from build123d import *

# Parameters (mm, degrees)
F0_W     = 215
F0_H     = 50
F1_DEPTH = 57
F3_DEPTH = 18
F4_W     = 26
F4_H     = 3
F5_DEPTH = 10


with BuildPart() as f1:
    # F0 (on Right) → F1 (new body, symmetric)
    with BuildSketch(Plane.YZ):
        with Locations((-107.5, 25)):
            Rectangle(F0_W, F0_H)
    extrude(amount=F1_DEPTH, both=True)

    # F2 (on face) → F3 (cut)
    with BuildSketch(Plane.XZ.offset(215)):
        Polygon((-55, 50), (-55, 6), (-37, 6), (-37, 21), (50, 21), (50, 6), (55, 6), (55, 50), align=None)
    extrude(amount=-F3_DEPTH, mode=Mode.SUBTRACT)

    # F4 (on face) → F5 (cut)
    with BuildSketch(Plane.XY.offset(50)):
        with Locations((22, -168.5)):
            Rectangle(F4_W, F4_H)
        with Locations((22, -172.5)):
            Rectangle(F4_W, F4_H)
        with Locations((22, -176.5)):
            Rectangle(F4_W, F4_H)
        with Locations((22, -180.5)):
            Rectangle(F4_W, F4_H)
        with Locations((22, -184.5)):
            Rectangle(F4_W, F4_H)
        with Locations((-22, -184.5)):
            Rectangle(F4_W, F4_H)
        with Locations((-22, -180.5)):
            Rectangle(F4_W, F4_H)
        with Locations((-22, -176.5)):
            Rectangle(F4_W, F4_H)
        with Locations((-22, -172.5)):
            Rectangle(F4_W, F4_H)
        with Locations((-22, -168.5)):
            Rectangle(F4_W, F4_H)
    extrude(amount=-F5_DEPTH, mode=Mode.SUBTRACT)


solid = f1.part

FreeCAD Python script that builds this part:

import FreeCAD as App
import Part
import Sketcher
from FreeCAD import Vector

doc = App.newDocument("Part")
body = doc.addObject("PartDesign::Body", "Body")

sketch1 = body.newObject("Sketcher::SketchObject", "Sketch")
sketch1.AttachmentSupport = (doc.getObject("YZ_Plane"), [""])
sketch1.MapMode = "FlatFace"
sketch1.addGeometry([
    Part.LineSegment(Vector(-215, 50, 0), Vector(-215, 0, 0)),
    Part.LineSegment(Vector(-215, 0, 0), Vector(0, 0, 0)),
    Part.LineSegment(Vector(0, 0, 0), Vector(0, 50, 0)),
    Part.LineSegment(Vector(0, 50, 0), Vector(-215, 50, 0)),
], False)
sketch1.addConstraint([
    Sketcher.Constraint("Coincident", 0, 2, 1, 1),
    Sketcher.Constraint("Coincident", 1, 2, 2, 1),
    Sketcher.Constraint("Coincident", 2, 2, 3, 1),
    Sketcher.Constraint("Coincident", 3, 2, 0, 1),
    Sketcher.Constraint("Vertical", 0),
    Sketcher.Constraint("Horizontal", 1),
    Sketcher.Constraint("Vertical", 2),
    Sketcher.Constraint("Horizontal", 3),
    Sketcher.Constraint("Coincident", 1, 2, -1, 1),
    Sketcher.Constraint("DistanceX", 1, 1, 1, 2, 215.0),
    Sketcher.Constraint("DistanceY", 0, 2, 0, 1, 50.0),
])
pad1 = body.newObject("PartDesign::Pad", "Pad")
pad1.Profile = sketch1
pad1.Length = 114
pad1.Midplane = True

sketch2 = body.newObject("Sketcher::SketchObject", "Sketch001")
sketch2.AttachmentSupport = (doc.getObject("XZ_Plane"), [""])
sketch2.MapMode = "FlatFace"
sketch2.AttachmentOffset = App.Placement(Vector(0, 0, 215), App.Rotation())
sketch2.addGeometry([
    Part.LineSegment(Vector(-55, 50, 0), Vector(-55, 6, 0)),
    Part.LineSegment(Vector(-55, 6, 0), Vector(-37, 6, 0)),
    Part.LineSegment(Vector(-37, 6, 0), Vector(-37, 21, 0)),
    Part.LineSegment(Vector(-37, 21, 0), Vector(50, 21, 0)),
    Part.LineSegment(Vector(50, 21, 0), Vector(50, 6, 0)),
    Part.LineSegment(Vector(50, 6, 0), Vector(55, 6, 0)),
    Part.LineSegment(Vector(55, 6, 0), Vector(55, 50, 0)),
    Part.LineSegment(Vector(55, 50, 0), Vector(-55, 50, 0)),
], False)
sketch2.addConstraint([
    Sketcher.Constraint("Coincident", 0, 2, 1, 1),
    Sketcher.Constraint("Coincident", 1, 2, 2, 1),
    Sketcher.Constraint("Coincident", 2, 2, 3, 1),
    Sketcher.Constraint("Coincident", 3, 2, 4, 1),
    Sketcher.Constraint("Coincident", 4, 2, 5, 1),
    Sketcher.Constraint("Coincident", 5, 2, 6, 1),
    Sketcher.Constraint("Coincident", 6, 2, 7, 1),
    Sketcher.Constraint("Coincident", 7, 2, 0, 1),
    Sketcher.Constraint("Vertical", 0),
    Sketcher.Constraint("Horizontal", 1),
    Sketcher.Constraint("Vertical", 2),
    Sketcher.Constraint("Horizontal", 3),
    Sketcher.Constraint("Vertical", 4),
    Sketcher.Constraint("Horizontal", 5),
    Sketcher.Constraint("Vertical", 6),
    Sketcher.Constraint("Horizontal", 7),
    Sketcher.Constraint("Symmetric", 0, 2, 5, 2, -2),
    Sketcher.Constraint("DistanceX", 1, 1, 1, 2, 18.0),
    Sketcher.Constraint("DistanceX", 3, 1, 3, 2, 87.0),
    Sketcher.Constraint("DistanceX", 5, 1, 5, 2, 5.0),
    Sketcher.Constraint("DistanceY", 0, 2, 0, 1, 44.0),
    Sketcher.Constraint("DistanceY", 2, 1, 2, 2, 15.0),
    Sketcher.Constraint("DistanceY", -1, 1, 0, 2, 6.0),
])
pocket1 = body.newObject("PartDesign::Pocket", "Pocket")
pocket1.Profile = sketch2
pocket1.Length = 18

sketch3 = body.newObject("Sketcher::SketchObject", "Sketch002")
sketch3.AttachmentSupport = (doc.getObject("XY_Plane"), [""])
sketch3.MapMode = "FlatFace"
sketch3.AttachmentOffset = App.Placement(Vector(0, 0, 50), App.Rotation())
sketch3.addGeometry([
    Part.LineSegment(Vector(9, -167, 0), Vector(9, -170, 0)),
    Part.LineSegment(Vector(9, -170, 0), Vector(35, -170, 0)),
    Part.LineSegment(Vector(35, -170, 0), Vector(35, -167, 0)),
    Part.LineSegment(Vector(35, -167, 0), Vector(9, -167, 0)),
    Part.LineSegment(Vector(9, -171, 0), Vector(9, -174, 0)),
    Part.LineSegment(Vector(9, -174, 0), Vector(35, -174, 0)),
    Part.LineSegment(Vector(35, -174, 0), Vector(35, -171, 0)),
    Part.LineSegment(Vector(35, -171, 0), Vector(9, -171, 0)),
    Part.LineSegment(Vector(9, -175, 0), Vector(9, -178, 0)),
    Part.LineSegment(Vector(9, -178, 0), Vector(35, -178, 0)),
    Part.LineSegment(Vector(35, -178, 0), Vector(35, -175, 0)),
    Part.LineSegment(Vector(35, -175, 0), Vector(9, -175, 0)),
    Part.LineSegment(Vector(9, -179, 0), Vector(9, -182, 0)),
    Part.LineSegment(Vector(9, -182, 0), Vector(35, -182, 0)),
    Part.LineSegment(Vector(35, -182, 0), Vector(35, -179, 0)),
    Part.LineSegment(Vector(35, -179, 0), Vector(9, -179, 0)),
    Part.LineSegment(Vector(9, -183, 0), Vector(9, -186, 0)),
    Part.LineSegment(Vector(9, -186, 0), Vector(35, -186, 0)),
    Part.LineSegment(Vector(35, -186, 0), Vector(35, -183, 0)),
    Part.LineSegment(Vector(35, -183, 0), Vector(9, -183, 0)),
    Part.LineSegment(Vector(-35, -183, 0), Vector(-35, -186, 0)),
    Part.LineSegment(Vector(-35, -186, 0), Vector(-9, -186, 0)),
    Part.LineSegment(Vector(-9, -186, 0), Vector(-9, -183, 0)),
    Part.LineSegment(Vector(-9, -183, 0), Vector(-35, -183, 0)),
    Part.LineSegment(Vector(-35, -179, 0), Vector(-35, -182, 0)),
    Part.LineSegment(Vector(-35, -182, 0), Vector(-9, -182, 0)),
    Part.LineSegment(Vector(-9, -182, 0), Vector(-9, -179, 0)),
    Part.LineSegment(Vector(-9, -179, 0), Vector(-35, -179, 0)),
    Part.LineSegment(Vector(-35, -175, 0), Vector(-35, -178, 0)),
    Part.LineSegment(Vector(-35, -178, 0), Vector(-9, -178, 0)),
    Part.LineSegment(Vector(-9, -178, 0), Vector(-9, -175, 0)),
    Part.LineSegment(Vector(-9, -175, 0), Vector(-35, -175, 0)),
    Part.LineSegment(Vector(-35, -171, 0), Vector(-35, -174, 0)),
    Part.LineSegment(Vector(-35, -174, 0), Vector(-9, -174, 0)),
    Part.LineSegment(Vector(-9, -174, 0), Vector(-9, -171, 0)),
    Part.LineSegment(Vector(-9, -171, 0), Vector(-35, -171, 0)),
    Part.LineSegment(Vector(-35, -167, 0), Vector(-35, -170, 0)),
    Part.LineSegment(Vector(-35, -170, 0), Vector(-9, -170, 0)),
    Part.LineSegment(Vector(-9, -170, 0), Vector(-9, -167, 0)),
    Part.LineSegment(Vector(-9, -167, 0), Vector(-35, -167, 0)),
], False)
sketch3.addConstraint([
    Sketcher.Constraint("Coincident", 0, 2, 1, 1),
    Sketcher.Constraint("Coincident", 1, 2, 2, 1),
    Sketcher.Constraint("Coincident", 2, 2, 3, 1),
    Sketcher.Constraint("Coincident", 3, 2, 0, 1),
    Sketcher.Constraint("Coincident", 4, 2, 5, 1),
    Sketcher.Constraint("Coincident", 5, 2, 6, 1),
    Sketcher.Constraint("Coincident", 6, 2, 7, 1),
    Sketcher.Constraint("Coincident", 7, 2, 4, 1),
    Sketcher.Constraint("Coincident", 8, 2, 9, 1),
    Sketcher.Constraint("Coincident", 9, 2, 10, 1),
    Sketcher.Constraint("Coincident", 10, 2, 11, 1),
    Sketcher.Constraint("Coincident", 11, 2, 8, 1),
    Sketcher.Constraint("Coincident", 12, 2, 13, 1),
    Sketcher.Constraint("Coincident", 13, 2, 14, 1),
    Sketcher.Constraint("Coincident", 14, 2, 15, 1),
    Sketcher.Constraint("Coincident", 15, 2, 12, 1),
    Sketcher.Constraint("Coincident", 16, 2, 17, 1),
    Sketcher.Constraint("Coincident", 17, 2, 18, 1),
    Sketcher.Constraint("Coincident", 18, 2, 19, 1),
    Sketcher.Constraint("Coincident", 19, 2, 16, 1),
    Sketcher.Constraint("Coincident", 20, 2, 21, 1),
    Sketcher.Constraint("Coincident", 21, 2, 22, 1),
    Sketcher.Constraint("Coincident", 22, 2, 23, 1),
    Sketcher.Constraint("Coincident", 23, 2, 20, 1),
    Sketcher.Constraint("Coincident", 24, 2, 25, 1),
    Sketcher.Constraint("Coincident", 25, 2, 26, 1),
    Sketcher.Constraint("Coincident", 26, 2, 27, 1),
    Sketcher.Constraint("Coincident", 27, 2, 24, 1),
    Sketcher.Constraint("Coincident", 28, 2, 29, 1),
    Sketcher.Constraint("Coincident", 29, 2, 30, 1),
    Sketcher.Constraint("Coincident", 30, 2, 31, 1),
    Sketcher.Constraint("Coincident", 31, 2, 28, 1),
    Sketcher.Constraint("Coincident", 32, 2, 33, 1),
    Sketcher.Constraint("Coincident", 33, 2, 34, 1),
    Sketcher.Constraint("Coincident", 34, 2, 35, 1),
    Sketcher.Constraint("Coincident", 35, 2, 32, 1),
    Sketcher.Constraint("Coincident", 36, 2, 37, 1),
    Sketcher.Constraint("Coincident", 37, 2, 38, 1),
    Sketcher.Constraint("Coincident", 38, 2, 39, 1),
    Sketcher.Constraint("Coincident", 39, 2, 36, 1),
    Sketcher.Constraint("Vertical", 0),
    Sketcher.Constraint("Horizontal", 1),
    Sketcher.Constraint("Vertical", 2),
    Sketcher.Constraint("Horizontal", 3),
    Sketcher.Constraint("Vertical", 4),
    Sketcher.Constraint("Horizontal", 5),
    Sketcher.Constraint("Vertical", 6),
    Sketcher.Constraint("Horizontal", 7),
    Sketcher.Constraint("Vertical", 8),
    Sketcher.Constraint("Horizontal", 9),
    Sketcher.Constraint("Vertical", 10),
    Sketcher.Constraint("Horizontal", 11),
    Sketcher.Constraint("Vertical", 12),
    Sketcher.Constraint("Horizontal", 13),
    Sketcher.Constraint("Vertical", 14),
    Sketcher.Constraint("Horizontal", 15),
    Sketcher.Constraint("Vertical", 16),
    Sketcher.Constraint("Horizontal", 17),
    Sketcher.Constraint("Vertical", 18),
    Sketcher.Constraint("Horizontal", 19),
    Sketcher.Constraint("Vertical", 20),
    Sketcher.Constraint("Horizontal", 21),
    Sketcher.Constraint("Vertical", 22),
    Sketcher.Constraint("Horizontal", 23),
    Sketcher.Constraint("Vertical", 24),
    Sketcher.Constraint("Horizontal", 25),
    Sketcher.Constraint("Vertical", 26),
    Sketcher.Constraint("Horizontal", 27),
    Sketcher.Constraint("Vertical", 28),
    Sketcher.Constraint("Horizontal", 29),
    Sketcher.Constraint("Vertical", 30),
    Sketcher.Constraint("Horizontal", 31),
    Sketcher.Constraint("Vertical", 32),
    Sketcher.Constraint("Horizontal", 33),
    Sketcher.Constraint("Vertical", 34),
    Sketcher.Constraint("Horizontal", 35),
    Sketcher.Constraint("Vertical", 36),
    Sketcher.Constraint("Horizontal", 37),
    Sketcher.Constraint("Vertical", 38),
    Sketcher.Constraint("Horizontal", 39),
    Sketcher.Constraint("Symmetric", 17, 2, 20, 2, -2),
    Sketcher.Constraint("Symmetric", 19, 2, 22, 2, -2),
    Sketcher.Constraint("Symmetric", 13, 2, 24, 2, -2),
    Sketcher.Constraint("Symmetric", 15, 2, 26, 2, -2),
    Sketcher.Constraint("Symmetric", 9, 2, 28, 2, -2),
    Sketcher.Constraint("Symmetric", 11, 2, 30, 2, -2),
    Sketcher.Constraint("Symmetric", 5, 2, 32, 2, -2),
    Sketcher.Constraint("Symmetric", 7, 2, 34, 2, -2),
    Sketcher.Constraint("Symmetric", 1, 2, 36, 2, -2),
    Sketcher.Constraint("Symmetric", 3, 2, 38, 2, -2),
    Sketcher.Constraint("Vertical", 3, 2, 4, 2),
    Sketcher.Constraint("Vertical", 2, 2, 5, 2),
    Sketcher.Constraint("Vertical", 7, 2, 8, 2),
    Sketcher.Constraint("Vertical", 6, 2, 9, 2),
    Sketcher.Constraint("Vertical", 11, 2, 12, 2),
    Sketcher.Constraint("Vertical", 10, 2, 13, 2),
    Sketcher.Constraint("Vertical", 15, 2, 16, 2),
    Sketcher.Constraint("Vertical", 14, 2, 17, 2),
    Sketcher.Constraint("Equal", 2, 4),
    Sketcher.Constraint("Equal", 6, 8),
    Sketcher.Constraint("Equal", 10, 12),
    Sketcher.Constraint("Equal", 14, 16),
    Sketcher.Constraint("DistanceX", 1, 1, 1, 2, 26.0),
    Sketcher.Constraint("DistanceY", 0, 2, 0, 1, 3.0),
    Sketcher.Constraint("DistanceX", -1, 1, 0, 2, 9.0),
    Sketcher.Constraint("DistanceY", 0, 2, -1, 1, 170.0),
    Sketcher.Constraint("DistanceY", 4, 2, -1, 1, 174.0),
    Sketcher.Constraint("DistanceY", 8, 2, -1, 1, 178.0),
    Sketcher.Constraint("DistanceY", 12, 2, -1, 1, 182.0),
    Sketcher.Constraint("DistanceY", 16, 2, -1, 1, 186.0),
])
pocket2 = body.newObject("PartDesign::Pocket", "Pocket001")
pocket2.Profile = sketch3
pocket2.Length = 10

doc.recompute()
